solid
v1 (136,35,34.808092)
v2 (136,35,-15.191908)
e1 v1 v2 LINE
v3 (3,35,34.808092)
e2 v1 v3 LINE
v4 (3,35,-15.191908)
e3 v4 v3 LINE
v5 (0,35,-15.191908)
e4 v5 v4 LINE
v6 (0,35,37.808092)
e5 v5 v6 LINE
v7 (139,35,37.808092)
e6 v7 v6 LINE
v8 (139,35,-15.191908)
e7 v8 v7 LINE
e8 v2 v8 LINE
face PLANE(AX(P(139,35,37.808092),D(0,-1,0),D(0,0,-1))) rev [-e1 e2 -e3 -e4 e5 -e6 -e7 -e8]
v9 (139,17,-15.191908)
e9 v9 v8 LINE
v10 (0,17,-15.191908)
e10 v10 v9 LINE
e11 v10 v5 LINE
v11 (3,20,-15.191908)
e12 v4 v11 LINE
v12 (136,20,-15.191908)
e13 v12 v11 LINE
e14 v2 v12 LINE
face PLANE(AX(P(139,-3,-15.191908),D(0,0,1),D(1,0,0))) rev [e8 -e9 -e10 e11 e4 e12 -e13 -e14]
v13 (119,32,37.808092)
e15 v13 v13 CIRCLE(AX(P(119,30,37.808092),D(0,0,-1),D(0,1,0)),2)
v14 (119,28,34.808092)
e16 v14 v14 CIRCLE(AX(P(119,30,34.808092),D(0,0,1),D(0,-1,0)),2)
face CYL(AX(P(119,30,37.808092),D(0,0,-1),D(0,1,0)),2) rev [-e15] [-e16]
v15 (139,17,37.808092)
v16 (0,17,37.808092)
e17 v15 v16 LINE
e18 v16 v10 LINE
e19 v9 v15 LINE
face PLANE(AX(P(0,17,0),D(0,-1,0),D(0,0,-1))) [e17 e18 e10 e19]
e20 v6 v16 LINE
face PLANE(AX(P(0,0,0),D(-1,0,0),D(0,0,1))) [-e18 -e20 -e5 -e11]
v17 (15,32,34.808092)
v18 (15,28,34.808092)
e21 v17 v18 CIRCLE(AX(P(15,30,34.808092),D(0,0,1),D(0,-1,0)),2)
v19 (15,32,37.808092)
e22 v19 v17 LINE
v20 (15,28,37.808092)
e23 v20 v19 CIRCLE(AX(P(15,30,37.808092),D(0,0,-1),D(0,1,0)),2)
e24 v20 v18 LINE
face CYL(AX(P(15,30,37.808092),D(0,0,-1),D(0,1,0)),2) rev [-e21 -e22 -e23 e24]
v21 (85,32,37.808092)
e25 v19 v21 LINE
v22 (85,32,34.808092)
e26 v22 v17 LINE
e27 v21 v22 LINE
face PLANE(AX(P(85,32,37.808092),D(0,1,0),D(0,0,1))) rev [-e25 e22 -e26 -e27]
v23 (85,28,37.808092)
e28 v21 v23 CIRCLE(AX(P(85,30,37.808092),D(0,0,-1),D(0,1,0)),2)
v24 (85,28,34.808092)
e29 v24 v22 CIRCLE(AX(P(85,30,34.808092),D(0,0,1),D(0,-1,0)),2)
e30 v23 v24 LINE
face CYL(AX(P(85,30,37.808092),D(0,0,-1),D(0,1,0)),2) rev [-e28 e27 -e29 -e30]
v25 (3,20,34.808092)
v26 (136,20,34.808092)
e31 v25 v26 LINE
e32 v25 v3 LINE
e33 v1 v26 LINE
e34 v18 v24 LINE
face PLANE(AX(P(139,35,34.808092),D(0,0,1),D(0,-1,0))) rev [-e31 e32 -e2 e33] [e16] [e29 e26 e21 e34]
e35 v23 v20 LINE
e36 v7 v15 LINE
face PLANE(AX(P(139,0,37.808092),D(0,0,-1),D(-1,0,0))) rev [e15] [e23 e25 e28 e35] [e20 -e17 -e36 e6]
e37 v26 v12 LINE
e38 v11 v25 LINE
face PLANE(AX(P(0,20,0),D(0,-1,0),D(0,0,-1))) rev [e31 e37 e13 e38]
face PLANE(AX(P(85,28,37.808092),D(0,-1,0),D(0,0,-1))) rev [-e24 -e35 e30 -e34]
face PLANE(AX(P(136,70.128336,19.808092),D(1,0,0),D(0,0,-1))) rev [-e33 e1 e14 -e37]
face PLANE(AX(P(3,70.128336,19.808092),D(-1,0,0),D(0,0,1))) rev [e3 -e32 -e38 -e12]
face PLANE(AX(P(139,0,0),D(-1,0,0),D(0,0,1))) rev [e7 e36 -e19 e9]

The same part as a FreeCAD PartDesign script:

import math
import FreeCAD as App
import Part
import Sketcher
from FreeCAD import Vector
Q = App.Units.Quantity

doc = App.newDocument("Part")
params = doc.addObject("Spreadsheet::Sheet", "Params")
for row, (alias, value) in enumerate([
    ("sketch1_width", "25 mm"),
    ("sketch1_width2", "38 mm"),
    ("sketch1_width3", "3 mm"),
    ("sketch1_height", "53 mm"),
    ("pad1_length", "139 mm"),
    ("sketch2_diameter", "4 mm"),
    ("sketch2_width", "70 mm"),
    ("sketch3_width", "3 mm"),
    ("sketch3_height", "35 mm"),
    ("pad2_length", "35 mm"),
    ("sketch4_width", "133 mm"),
    ("sketch4_height", "35 mm"),
    ("pad3_length", "5 mm"),
    ("sketch5_width", "133 mm"),
    ("sketch5_height", "35 mm"),
    ("pocket2_length", "20 mm"),
    ("sketch6_width", "3 mm"),
    ("sketch6_height", "12 mm"),
    ("pad4_length", "25 mm"),
    ("sketch7_width", "133 mm"),
    ("sketch7_height", "50 mm"),
    ("pad5_length", "20 mm"),
    ("sketch8_width", "139 mm"),
    ("sketch8_height", "53 mm"),
    ("pocket3_length", "20 mm"),
], start=1):
    params.set(f"A{row}", alias)
    params.set(f"B{row}", "=" + value)
    params.setAlias(f"B{row}", alias)

body = doc.addObject("PartDesign::Body", "Body")

sketch1 = body.newObject("Sketcher::SketchObject", "Sketch")
sketch1.AttachmentSupport = (doc.getObject("YZ_Plane"), [""])
sketch1.MapMode = "FlatFace"
sketch1.addGeometry([
    Part.LineSegment(Vector(10, 34.808092, 0), Vector(35, 34.808092, 0)),
    Part.LineSegment(Vector(35, 34.808092, 0), Vector(35, 37.808092, 0)),
    Part.LineSegment(Vector(35, 37.808092, 0), Vector(-3, 37.808092, 0)),
    Part.LineSegment(Vector(-3, 37.808092, 0), Vector(-3, -15.191908, 0)),
    Part.LineSegment(Vector(-3, -15.191908, 0), Vector(0, -15.191908, 0)),
    Part.LineSegment(Vector(0, -15.191908, 0), Vector(0, 19.808092, 0)),
    Part.LineSegment(Vector(0, 19.808092, 0), Vector(35, 19.808092, 0)),
    Part.LineSegment(Vector(35, 19.808092, 0), Vector(35, 22.808092, 0)),
    Part.LineSegment(Vector(35, 22.808092, 0), Vector(10, 22.808092, 0)),
    Part.LineSegment(Vector(10, 22.808092, 0), Vector(10, 34.808092, 0)),
], False)
sketch1.addConstraint([
    Sketcher.Constraint("Coincident", 0, 2, 1, 1),
    Sketcher.Constraint("Coincident", 1, 2, 2, 1),
    Sketcher.Constraint("Coincident", 2, 2, 3, 1),
    Sketcher.Constraint("Coincident", 3, 2, 4, 1),
    Sketcher.Constraint("Coincident", 4, 2, 5, 1),
    Sketcher.Constraint("Coincident", 5, 2, 6, 1),
    Sketcher.Constraint("Coincident", 6, 2, 7, 1),
    Sketcher.Constraint("Coincident", 7, 2, 8, 1),
    Sketcher.Constraint("Coincident", 8, 2, 9, 1),
    Sketcher.Constraint("Coincident", 9, 2, 0, 1),
    Sketcher.Constraint("Horizontal", 0),
    Sketcher.Constraint("Vertical", 1),
    Sketcher.Constraint("Horizontal", 2),
    Sketcher.Constraint("Vertical", 3),
    Sketcher.Constraint("Horizontal", 4),
    Sketcher.Constraint("Vertical", 5),
    Sketcher.Constraint("Horizontal", 6),
    Sketcher.Constraint("Vertical", 7),
    Sketcher.Constraint("Horizontal", 8),
    Sketcher.Constraint("Vertical", 9),
    Sketcher.Constraint("PointOnObject", 4, 2, -2),
    Sketcher.Constraint("Vertical", 1, 2, 6, 2),
    Sketcher.Constraint("Equal", 4, 1),
    Sketcher.Constraint("Equal", 6, 5),
    Sketcher.Constraint("Equal", 1, 7),
    Sketcher.Constraint("DistanceX", 0, 1, 0, 2, Q("25 mm")),
    Sketcher.Constraint("DistanceX", 2, 2, 2, 1, Q("38 mm")),
    Sketcher.Constraint("DistanceX", 4, 1, 4, 2, Q("3 mm")),
    Sketcher.Constraint("DistanceY", 3, 2, 3, 1, Q("53 mm")),
    Sketcher.Constraint("DistanceY", -1, 1, 0, 2, Q("34.808092 mm")),
])
sketch1.setExpression("Constraints[25]", "Params.sketch1_width")
sketch1.setExpression("Constraints[26]", "Params.sketch1_width2")
sketch1.setExpression("Constraints[27]", "Params.sketch1_width3")
sketch1.setExpression("Constraints[28]", "Params.sketch1_height")
pad1 = body.newObject("PartDesign::Pad", "Pad")
pad1.Profile = sketch1
pad1.setExpression("Length", "Params.pad1_length")

sketch2 = body.newObject("Sketcher::SketchObject", "Sketch001")
sketch2.AttachmentSupport = (doc.getObject("XY_Plane"), [""])
sketch2.MapMode = "FlatFace"
sketch2.AttachmentOffset = App.Placement(Vector(0, 0, 19.808092), App.Rotation())
sketch2.addGeometry([
    Part.Circle(Vector(119, 30, 0), Vector(0, 0, 1), 2),
    Part.LineSegment(Vector(15, 32, 0), Vector(85, 32, 0)),
    Part.ArcOfCircle(Part.Circle(Vector(85, 30, 0), Vector(0, 0, 1), 2), math.radians(-90), math.radians(90)),
    Part.LineSegment(Vector(85, 28, 0), Vector(15, 28, 0)),
    Part.ArcOfCircle(Part.Circle(Vector(15, 30, 0), Vector(0, 0, 1), 2), math.radians(90), math.radians(270)),
], False)
sketch2.addConstraint([
    Sketcher.Constraint("Tangent", 1, 2, 2, 2),
    Sketcher.Constraint("Tangent", 2, 1, 3, 1),
    Sketcher.Constraint("Tangent", 3, 2, 4, 2),
    Sketcher.Constraint("Tangent", 4, 1, 1, 1),
    Sketcher.Constraint("Horizontal", 1),
    Sketcher.Constraint("Horizontal", 3),
    Sketcher.Constraint("Equal", 0, 2),
    Sketcher.Constraint("Horizontal", 0, 3, 2, 3),
    Sketcher.Constraint("Diameter", 0, Q("4 mm")),
    Sketcher.Constraint("DistanceX", 1, 1, 1, 2, Q("70 mm")),
    Sketcher.Constraint("DistanceX", -1, 1, 0, 3, Q("119 mm")),
    Sketcher.Constraint("DistanceY", -1, 1, 0, 3, Q("30 mm")),
    Sketcher.Constraint("DistanceX", -1, 1, 2, 3, Q("85 mm")),
])
sketch2.setExpression("Constraints[8]", "Params.sketch2_diameter")
sketch2.setExpression("Constraints[9]", "Params.sketch2_width")
pocket1 = body.newObject("PartDesign::Pocket", "Pocket")
pocket1.Profile = sketch2
pocket1.Type = "ThroughAll"
pocket1.Reversed = True

sketch3 = body.newObject("Sketcher::SketchObject", "Sketch002")
sketch3.AttachmentSupport = (doc.getObject("XZ_Plane"), [""])
sketch3.MapMode = "FlatFace"
sketch3.addGeometry([
    Part.LineSegment(Vector(0, -15.191908, 0), Vector(0, 19.808092, 0)),
    Part.LineSegment(Vector(0, 19.808092, 0), Vector(3, 19.808092, 0)),
    Part.LineSegment(Vector(3, 19.808092, 0), Vector(3, -15.191908, 0)),
    Part.LineSegment(Vector(3, -15.191908, 0), Vector(0, -15.191908, 0)),
    Part.LineSegment(Vector(136, -15.191908, 0), Vector(136, 19.808092, 0)),
    Part.LineSegment(Vector(136, 19.808092, 0), Vector(139, 19.808092, 0)),
    Part.LineSegment(Vector(139, 19.808092, 0), Vector(139, -15.191908, 0)),
    Part.LineSegment(Vector(139, -15.191908, 0), Vector(136, -15.191908, 0)),
], False)
sketch3.addConstraint([
    Sketcher.Constraint("Coincident", 0, 2, 1, 1),
    Sketcher.Constraint("Coincident", 1, 2, 2, 1),
    Sketcher.Constraint("Coincident", 2, 2, 3, 1),
    Sketcher.Constraint("Coincident", 3, 2, 0, 1),
    Sketcher.Constraint("Coincident", 4, 2, 5, 1),
    Sketcher.Constraint("Coincident", 5, 2, 6, 1),
    Sketcher.Constraint("Coincident", 6, 2, 7, 1),
    Sketcher.Constraint("Coincident", 7, 2, 4, 1),
    Sketcher.Constraint("Vertical", 0),
    Sketcher.Constraint("Horizontal", 1),
    Sketcher.Constraint("Vertical", 2),
    Sketcher.Constraint("Horizontal", 3),
    Sketcher.Constraint("Vertical", 4),
    Sketcher.Constraint("Horizontal", 5),
    Sketcher.Constraint("Vertical", 6),
    Sketcher.Constraint("Horizontal", 7),
    Sketcher.Constraint("PointOnObject", 0, 2, -2),
    Sketcher.Constraint("Horizontal", 1, 2, 4, 2),
    Sketcher.Constraint("Horizontal", 3, 2, 6, 2),
    Sketcher.Constraint("Equal", 3, 5),
    Sketcher.Constraint("DistanceX", 1, 1, 1, 2, Q("3 mm")),
    Sketcher.Constraint("DistanceY", 0, 1, 0, 2, Q("35 mm")),
    Sketcher.Constraint("DistanceX", -1, 1, 4, 2, Q("136 mm")),
    Sketcher.Constraint("DistanceY", -1, 1, 0, 2, Q("19.808092 mm")),
])
sketch3.setExpression("Constraints[20]", "Params.sketch3_width")
sketch3.setExpression("Constraints[21]", "Params.sketch3_height")
pad2 = body.newObject("PartDesign::Pad", "Pad001")
pad2.Profile = sketch3
pad2.setExpression("Length", "Params.pad2_length")
pad2.Reversed = True

sketch4 = body.newObject("Sketcher::SketchObject", "Sketch003")
sketch4.AttachmentSupport = (doc.getObject("XY_Plane"), [""])
sketch4.MapMode = "FlatFace"
sketch4.AttachmentOffset = App.Placement(Vector(0, 0, 19.808092), App.Rotation())
sketch4.addGeometry([
    Part.LineSegment(Vector(136, 35, 0), Vector(136, 0, 0)),
    Part.LineSegment(Vector(136, 0, 0), Vector(3, 0, 0)),
    Part.LineSegment(Vector(3, 0, 0), Vector(3, 35, 0)),
    Part.LineSegment(Vector(3, 35, 0), Vector(136, 35, 0)),
], False)
sketch4.addConstraint([
    Sketcher.Constraint("Coincident", 0, 2, 1, 1),
    Sketcher.Constraint("Coincident", 1, 2, 2, 1),
    Sketcher.Constraint("Coincident", 2, 2, 3, 1),
    Sketcher.Constraint("Coincident", 3, 2, 0, 1),
    Sketcher.Constraint("Vertical", 0),
    Sketcher.Constraint("Horizontal", 1),
    Sketcher.Constraint("Vertical", 2),
    Sketcher.Constraint("Horizontal", 3),
    Sketcher.Constraint("PointOnObject", 0, 2, -1),
    Sketcher.Constraint("DistanceX", 1, 2, 1, 1, Q("133 mm")),
    Sketcher.Constraint("DistanceY", 0, 2, 0, 1, Q("35 mm")),
    Sketcher.Constraint("DistanceX", -1, 1, 0, 2, Q("136 mm")),
])
sketch4.setExpression("Constraints[9]", "Params.sketch4_width")
sketch4.setExpression("Constraints[10]", "Params.sketch4_height")
pad3 = body.newObject("PartDesign::Pad", "Pad002")
pad3.Profile = sketch4
pad3.setExpression("Length", "Params.pad3_length")
pad3.Reversed = True

sketch5 = body.newObject("Sketcher::SketchObject", "Sketch004")
sketch5.AttachmentSupport = (doc.getObject("XY_Plane"), [""])
sketch5.MapMode = "FlatFace"
sketch5.AttachmentOffset = App.Placement(Vector(0, 0, 14.808092), App.Rotation())
sketch5.addGeometry([
    Part.LineSegment(Vector(136, 35, 0), Vector(136, 0, 0)),
    Part.LineSegment(Vector(136, 0, 0), Vector(3, 0, 0)),
    Part.LineSegment(Vector(3, 0, 0), Vector(3, 35, 0)),
    Part.LineSegment(Vector(3, 35, 0), Vector(136, 35, 0)),
], False)
sketch5.addConstraint([
    Sketcher.Constraint("Coincident", 0, 2, 1, 1),
    Sketcher.Constraint("Coincident", 1, 2, 2, 1),
    Sketcher.Constraint("Coincident", 2, 2, 3, 1),
    Sketcher.Constraint("Coincident", 3, 2, 0, 1),
    Sketcher.Constraint("Vertical", 0),
    Sketcher.Constraint("Horizontal", 1),
    Sketcher.Constraint("Vertical", 2),
    Sketcher.Constraint("Horizontal", 3),
    Sketcher.Constraint("PointOnObject", 0, 2, -1),
    Sketcher.Constraint("DistanceX", 1, 2, 1, 1, Q("133 mm")),
    Sketcher.Constraint("DistanceY", 0, 2, 0, 1, Q("35 mm")),
    Sketcher.Constraint("DistanceX", -1, 1, 0, 2, Q("136 mm")),
])
sketch5.setExpression("Constraints[9]", "Params.sketch5_width")
sketch5.setExpression("Constraints[10]", "Params.sketch5_height")
pocket2 = body.newObject("PartDesign::Pocket", "Pocket001")
pocket2.Profile = sketch5
pocket2.setExpression("Length", "Params.pocket2_length")
pocket2.Reversed = True

sketch6 = body.newObject("Sketcher::SketchObject", "Sketch005")
sketch6.AttachmentSupport = (doc.getObject("XZ_Plane"), [""])
sketch6.MapMode = "FlatFace"
sketch6.AttachmentOffset = App.Placement(Vector(0, 0, -10), App.Rotation())
sketch6.addGeometry([
    Part.LineSegment(Vector(136, 22.808092, 0), Vector(136, 34.808092, 0)),
    Part.LineSegment(Vector(136, 34.808092, 0), Vector(139, 34.808092, 0)),
    Part.LineSegment(Vector(139, 34.808092, 0), Vector(139, 22.808092, 0)),
    Part.LineSegment(Vector(139, 22.808092, 0), Vector(136, 22.808092, 0)),
    Part.LineSegment(Vector(0, 22.808092, 0), Vector(0, 34.808092, 0)),
    Part.LineSegment(Vector(0, 34.808092, 0), Vector(3, 34.808092, 0)),
    Part.LineSegment(Vector(3, 34.808092, 0), Vector(3, 22.808092, 0)),
    Part.LineSegment(Vector(3, 22.808092, 0), Vector(0, 22.808092, 0)),
], False)
sketch6.addConstraint([
    Sketcher.Constraint("Coincident", 0, 2, 1, 1),
    Sketcher.Constraint("Coincident", 1, 2, 2, 1),
    Sketcher.Constraint("Coincident", 2, 2, 3, 1),
    Sketcher.Constraint("Coincident", 3, 2, 0, 1),
    Sketcher.Constraint("Coincident", 4, 2, 5, 1),
    Sketcher.Constraint("Coincident", 5, 2, 6, 1),
    Sketcher.Constraint("Coincident", 6, 2, 7, 1),
    Sketcher.Constraint("Coincident", 7, 2, 4, 1),
    Sketcher.Constraint("Vertical", 0),
    Sketcher.Constraint("Horizontal", 1),
    Sketcher.Constraint("Vertical", 2),
    Sketcher.Constraint("Horizontal", 3),
    Sketcher.Constraint("Vertical", 4),
    Sketcher.Constraint("Horizontal", 5),
    Sketcher.Constraint("Vertical", 6),
    Sketcher.Constraint("Horizontal", 7),
    Sketcher.Constraint("PointOnObject", 4, 2, -2),
    Sketcher.Constraint("Horizontal", 1, 2, 4, 2),
    Sketcher.Constraint("Horizontal", 3, 2, 6, 2),
    Sketcher.Constraint("Equal", 3, 5),
    Sketcher.Constraint("DistanceX", 1, 1, 1, 2, Q("3 mm")),
    Sketcher.Constraint("DistanceY", 0, 1, 0, 2, Q("12 mm")),
    Sketcher.Constraint("DistanceX", -1, 1, 0, 2, Q("136 mm")),
    Sketcher.Constraint("DistanceY", -1, 1, 0, 2, Q("34.808092 mm")),
])
sketch6.setExpression("Constraints[20]", "Params.sketch6_width")
sketch6.setExpression("Constraints[21]", "Params.sketch6_height")
pad4 = body.newObject("PartDesign::Pad", "Pad003")
pad4.Profile = sketch6
pad4.setExpression("Length", "Params.pad4_length")
pad4.Reversed = True

sketch7 = body.newObject("Sketcher::SketchObject", "Sketch006")
sketch7.AttachmentSupport = (doc.getObject("XZ_Plane"), [""])
sketch7.MapMode = "FlatFace"
sketch7.addGeometry([
    Part.LineSegment(Vector(3, -15.191908, 0), Vector(3, 34.808092, 0)),
    Part.LineSegment(Vector(3, 34.808092, 0), Vector(136, 34.808092, 0)),
    Part.LineSegment(Vector(136, 34.808092, 0), Vector(136, -15.191908, 0)),
    Part.LineSegment(Vector(136, -15.191908, 0), Vector(3, -15.191908, 0)),
], False)
sketch7.addConstraint([
    Sketcher.Constraint("Coincident", 0, 2, 1, 1),
    Sketcher.Constraint("Coincident", 1, 2, 2, 1),
    Sketcher.Constraint("Coincident", 2, 2, 3, 1),
    Sketcher.Constraint("Coincident", 3, 2, 0, 1),
    Sketcher.Constraint("Vertical", 0),
    Sketcher.Constraint("Horizontal", 1),
    Sketcher.Constraint("Vertical", 2),
    Sketcher.Constraint("Horizontal", 3),
    Sketcher.Constraint("DistanceX", 1, 1, 1, 2, Q("133 mm")),
    Sketcher.Constraint("DistanceY", 0, 1, 0, 2, Q("50 mm")),
    Sketcher.Constraint("DistanceX", -1, 1, 0, 2, Q("3 mm")),
    Sketcher.Constraint("DistanceY", -1, 1, 0, 2, Q("34.808092 mm")),
])
sketch7.setExpression("Constraints[8]", "Params.sketch7_width")
sketch7.setExpression("Constraints[9]", "Params.sketch7_height")
pad5 = body.newObject("PartDesign::Pad", "Pad004")
pad5.Profile = sketch7
pad5.setExpression("Length", "Params.pad5_length")
pad5.Reversed = True

sketch8 = body.newObject("Sketcher::SketchObject", "Sketch007")
sketch8.AttachmentSupport = (doc.getObject("XZ_Plane"), [""])
sketch8.MapMode = "FlatFace"
sketch8.AttachmentOffset = App.Placement(Vector(0, 0, 3), App.Rotation())
sketch8.addGeometry([
    Part.LineSegment(Vector(0, 37.808092, 0), Vector(0, -15.191908, 0)),
    Part.LineSegment(Vector(0, -15.191908, 0), Vector(139, -15.191908, 0)),
    Part.LineSegment(Vector(139, -15.191908, 0), Vector(139, 37.808092, 0)),
    Part.LineSegment(Vector(139, 37.808092, 0), Vector(0, 37.808092, 0)),
], False)
sketch8.addConstraint([
    Sketcher.Constraint("Coincident", 0, 2, 1, 1),
    Sketcher.Constraint("Coincident", 1, 2, 2, 1),
    Sketcher.Constraint("Coincident", 2, 2, 3, 1),
    Sketcher.Constraint("Coincident", 3, 2, 0, 1),
    Sketcher.Constraint("Vertical", 0),
    Sketcher.Constraint("Horizontal", 1),
    Sketcher.Constraint("Vertical", 2),
    Sketcher.Constraint("Horizontal", 3),
    Sketcher.Constraint("PointOnObject", 0, 2, -2),
    Sketcher.Constraint("DistanceX", 1, 1, 1, 2, Q("139 mm")),
    Sketcher.Constraint("DistanceY", 0, 2, 0, 1, Q("53 mm")),
    Sketcher.Constraint("DistanceY", 0, 2, -1, 1, Q("15.191908 mm")),
])
sketch8.setExpression("Constraints[9]", "Params.sketch8_width")
sketch8.setExpression("Constraints[10]", "Params.sketch8_height")
pocket3 = body.newObject("PartDesign::Pocket", "Pocket002")
pocket3.Profile = sketch8
pocket3.setExpression("Length", "Params.pocket3_length")

doc.recompute()
